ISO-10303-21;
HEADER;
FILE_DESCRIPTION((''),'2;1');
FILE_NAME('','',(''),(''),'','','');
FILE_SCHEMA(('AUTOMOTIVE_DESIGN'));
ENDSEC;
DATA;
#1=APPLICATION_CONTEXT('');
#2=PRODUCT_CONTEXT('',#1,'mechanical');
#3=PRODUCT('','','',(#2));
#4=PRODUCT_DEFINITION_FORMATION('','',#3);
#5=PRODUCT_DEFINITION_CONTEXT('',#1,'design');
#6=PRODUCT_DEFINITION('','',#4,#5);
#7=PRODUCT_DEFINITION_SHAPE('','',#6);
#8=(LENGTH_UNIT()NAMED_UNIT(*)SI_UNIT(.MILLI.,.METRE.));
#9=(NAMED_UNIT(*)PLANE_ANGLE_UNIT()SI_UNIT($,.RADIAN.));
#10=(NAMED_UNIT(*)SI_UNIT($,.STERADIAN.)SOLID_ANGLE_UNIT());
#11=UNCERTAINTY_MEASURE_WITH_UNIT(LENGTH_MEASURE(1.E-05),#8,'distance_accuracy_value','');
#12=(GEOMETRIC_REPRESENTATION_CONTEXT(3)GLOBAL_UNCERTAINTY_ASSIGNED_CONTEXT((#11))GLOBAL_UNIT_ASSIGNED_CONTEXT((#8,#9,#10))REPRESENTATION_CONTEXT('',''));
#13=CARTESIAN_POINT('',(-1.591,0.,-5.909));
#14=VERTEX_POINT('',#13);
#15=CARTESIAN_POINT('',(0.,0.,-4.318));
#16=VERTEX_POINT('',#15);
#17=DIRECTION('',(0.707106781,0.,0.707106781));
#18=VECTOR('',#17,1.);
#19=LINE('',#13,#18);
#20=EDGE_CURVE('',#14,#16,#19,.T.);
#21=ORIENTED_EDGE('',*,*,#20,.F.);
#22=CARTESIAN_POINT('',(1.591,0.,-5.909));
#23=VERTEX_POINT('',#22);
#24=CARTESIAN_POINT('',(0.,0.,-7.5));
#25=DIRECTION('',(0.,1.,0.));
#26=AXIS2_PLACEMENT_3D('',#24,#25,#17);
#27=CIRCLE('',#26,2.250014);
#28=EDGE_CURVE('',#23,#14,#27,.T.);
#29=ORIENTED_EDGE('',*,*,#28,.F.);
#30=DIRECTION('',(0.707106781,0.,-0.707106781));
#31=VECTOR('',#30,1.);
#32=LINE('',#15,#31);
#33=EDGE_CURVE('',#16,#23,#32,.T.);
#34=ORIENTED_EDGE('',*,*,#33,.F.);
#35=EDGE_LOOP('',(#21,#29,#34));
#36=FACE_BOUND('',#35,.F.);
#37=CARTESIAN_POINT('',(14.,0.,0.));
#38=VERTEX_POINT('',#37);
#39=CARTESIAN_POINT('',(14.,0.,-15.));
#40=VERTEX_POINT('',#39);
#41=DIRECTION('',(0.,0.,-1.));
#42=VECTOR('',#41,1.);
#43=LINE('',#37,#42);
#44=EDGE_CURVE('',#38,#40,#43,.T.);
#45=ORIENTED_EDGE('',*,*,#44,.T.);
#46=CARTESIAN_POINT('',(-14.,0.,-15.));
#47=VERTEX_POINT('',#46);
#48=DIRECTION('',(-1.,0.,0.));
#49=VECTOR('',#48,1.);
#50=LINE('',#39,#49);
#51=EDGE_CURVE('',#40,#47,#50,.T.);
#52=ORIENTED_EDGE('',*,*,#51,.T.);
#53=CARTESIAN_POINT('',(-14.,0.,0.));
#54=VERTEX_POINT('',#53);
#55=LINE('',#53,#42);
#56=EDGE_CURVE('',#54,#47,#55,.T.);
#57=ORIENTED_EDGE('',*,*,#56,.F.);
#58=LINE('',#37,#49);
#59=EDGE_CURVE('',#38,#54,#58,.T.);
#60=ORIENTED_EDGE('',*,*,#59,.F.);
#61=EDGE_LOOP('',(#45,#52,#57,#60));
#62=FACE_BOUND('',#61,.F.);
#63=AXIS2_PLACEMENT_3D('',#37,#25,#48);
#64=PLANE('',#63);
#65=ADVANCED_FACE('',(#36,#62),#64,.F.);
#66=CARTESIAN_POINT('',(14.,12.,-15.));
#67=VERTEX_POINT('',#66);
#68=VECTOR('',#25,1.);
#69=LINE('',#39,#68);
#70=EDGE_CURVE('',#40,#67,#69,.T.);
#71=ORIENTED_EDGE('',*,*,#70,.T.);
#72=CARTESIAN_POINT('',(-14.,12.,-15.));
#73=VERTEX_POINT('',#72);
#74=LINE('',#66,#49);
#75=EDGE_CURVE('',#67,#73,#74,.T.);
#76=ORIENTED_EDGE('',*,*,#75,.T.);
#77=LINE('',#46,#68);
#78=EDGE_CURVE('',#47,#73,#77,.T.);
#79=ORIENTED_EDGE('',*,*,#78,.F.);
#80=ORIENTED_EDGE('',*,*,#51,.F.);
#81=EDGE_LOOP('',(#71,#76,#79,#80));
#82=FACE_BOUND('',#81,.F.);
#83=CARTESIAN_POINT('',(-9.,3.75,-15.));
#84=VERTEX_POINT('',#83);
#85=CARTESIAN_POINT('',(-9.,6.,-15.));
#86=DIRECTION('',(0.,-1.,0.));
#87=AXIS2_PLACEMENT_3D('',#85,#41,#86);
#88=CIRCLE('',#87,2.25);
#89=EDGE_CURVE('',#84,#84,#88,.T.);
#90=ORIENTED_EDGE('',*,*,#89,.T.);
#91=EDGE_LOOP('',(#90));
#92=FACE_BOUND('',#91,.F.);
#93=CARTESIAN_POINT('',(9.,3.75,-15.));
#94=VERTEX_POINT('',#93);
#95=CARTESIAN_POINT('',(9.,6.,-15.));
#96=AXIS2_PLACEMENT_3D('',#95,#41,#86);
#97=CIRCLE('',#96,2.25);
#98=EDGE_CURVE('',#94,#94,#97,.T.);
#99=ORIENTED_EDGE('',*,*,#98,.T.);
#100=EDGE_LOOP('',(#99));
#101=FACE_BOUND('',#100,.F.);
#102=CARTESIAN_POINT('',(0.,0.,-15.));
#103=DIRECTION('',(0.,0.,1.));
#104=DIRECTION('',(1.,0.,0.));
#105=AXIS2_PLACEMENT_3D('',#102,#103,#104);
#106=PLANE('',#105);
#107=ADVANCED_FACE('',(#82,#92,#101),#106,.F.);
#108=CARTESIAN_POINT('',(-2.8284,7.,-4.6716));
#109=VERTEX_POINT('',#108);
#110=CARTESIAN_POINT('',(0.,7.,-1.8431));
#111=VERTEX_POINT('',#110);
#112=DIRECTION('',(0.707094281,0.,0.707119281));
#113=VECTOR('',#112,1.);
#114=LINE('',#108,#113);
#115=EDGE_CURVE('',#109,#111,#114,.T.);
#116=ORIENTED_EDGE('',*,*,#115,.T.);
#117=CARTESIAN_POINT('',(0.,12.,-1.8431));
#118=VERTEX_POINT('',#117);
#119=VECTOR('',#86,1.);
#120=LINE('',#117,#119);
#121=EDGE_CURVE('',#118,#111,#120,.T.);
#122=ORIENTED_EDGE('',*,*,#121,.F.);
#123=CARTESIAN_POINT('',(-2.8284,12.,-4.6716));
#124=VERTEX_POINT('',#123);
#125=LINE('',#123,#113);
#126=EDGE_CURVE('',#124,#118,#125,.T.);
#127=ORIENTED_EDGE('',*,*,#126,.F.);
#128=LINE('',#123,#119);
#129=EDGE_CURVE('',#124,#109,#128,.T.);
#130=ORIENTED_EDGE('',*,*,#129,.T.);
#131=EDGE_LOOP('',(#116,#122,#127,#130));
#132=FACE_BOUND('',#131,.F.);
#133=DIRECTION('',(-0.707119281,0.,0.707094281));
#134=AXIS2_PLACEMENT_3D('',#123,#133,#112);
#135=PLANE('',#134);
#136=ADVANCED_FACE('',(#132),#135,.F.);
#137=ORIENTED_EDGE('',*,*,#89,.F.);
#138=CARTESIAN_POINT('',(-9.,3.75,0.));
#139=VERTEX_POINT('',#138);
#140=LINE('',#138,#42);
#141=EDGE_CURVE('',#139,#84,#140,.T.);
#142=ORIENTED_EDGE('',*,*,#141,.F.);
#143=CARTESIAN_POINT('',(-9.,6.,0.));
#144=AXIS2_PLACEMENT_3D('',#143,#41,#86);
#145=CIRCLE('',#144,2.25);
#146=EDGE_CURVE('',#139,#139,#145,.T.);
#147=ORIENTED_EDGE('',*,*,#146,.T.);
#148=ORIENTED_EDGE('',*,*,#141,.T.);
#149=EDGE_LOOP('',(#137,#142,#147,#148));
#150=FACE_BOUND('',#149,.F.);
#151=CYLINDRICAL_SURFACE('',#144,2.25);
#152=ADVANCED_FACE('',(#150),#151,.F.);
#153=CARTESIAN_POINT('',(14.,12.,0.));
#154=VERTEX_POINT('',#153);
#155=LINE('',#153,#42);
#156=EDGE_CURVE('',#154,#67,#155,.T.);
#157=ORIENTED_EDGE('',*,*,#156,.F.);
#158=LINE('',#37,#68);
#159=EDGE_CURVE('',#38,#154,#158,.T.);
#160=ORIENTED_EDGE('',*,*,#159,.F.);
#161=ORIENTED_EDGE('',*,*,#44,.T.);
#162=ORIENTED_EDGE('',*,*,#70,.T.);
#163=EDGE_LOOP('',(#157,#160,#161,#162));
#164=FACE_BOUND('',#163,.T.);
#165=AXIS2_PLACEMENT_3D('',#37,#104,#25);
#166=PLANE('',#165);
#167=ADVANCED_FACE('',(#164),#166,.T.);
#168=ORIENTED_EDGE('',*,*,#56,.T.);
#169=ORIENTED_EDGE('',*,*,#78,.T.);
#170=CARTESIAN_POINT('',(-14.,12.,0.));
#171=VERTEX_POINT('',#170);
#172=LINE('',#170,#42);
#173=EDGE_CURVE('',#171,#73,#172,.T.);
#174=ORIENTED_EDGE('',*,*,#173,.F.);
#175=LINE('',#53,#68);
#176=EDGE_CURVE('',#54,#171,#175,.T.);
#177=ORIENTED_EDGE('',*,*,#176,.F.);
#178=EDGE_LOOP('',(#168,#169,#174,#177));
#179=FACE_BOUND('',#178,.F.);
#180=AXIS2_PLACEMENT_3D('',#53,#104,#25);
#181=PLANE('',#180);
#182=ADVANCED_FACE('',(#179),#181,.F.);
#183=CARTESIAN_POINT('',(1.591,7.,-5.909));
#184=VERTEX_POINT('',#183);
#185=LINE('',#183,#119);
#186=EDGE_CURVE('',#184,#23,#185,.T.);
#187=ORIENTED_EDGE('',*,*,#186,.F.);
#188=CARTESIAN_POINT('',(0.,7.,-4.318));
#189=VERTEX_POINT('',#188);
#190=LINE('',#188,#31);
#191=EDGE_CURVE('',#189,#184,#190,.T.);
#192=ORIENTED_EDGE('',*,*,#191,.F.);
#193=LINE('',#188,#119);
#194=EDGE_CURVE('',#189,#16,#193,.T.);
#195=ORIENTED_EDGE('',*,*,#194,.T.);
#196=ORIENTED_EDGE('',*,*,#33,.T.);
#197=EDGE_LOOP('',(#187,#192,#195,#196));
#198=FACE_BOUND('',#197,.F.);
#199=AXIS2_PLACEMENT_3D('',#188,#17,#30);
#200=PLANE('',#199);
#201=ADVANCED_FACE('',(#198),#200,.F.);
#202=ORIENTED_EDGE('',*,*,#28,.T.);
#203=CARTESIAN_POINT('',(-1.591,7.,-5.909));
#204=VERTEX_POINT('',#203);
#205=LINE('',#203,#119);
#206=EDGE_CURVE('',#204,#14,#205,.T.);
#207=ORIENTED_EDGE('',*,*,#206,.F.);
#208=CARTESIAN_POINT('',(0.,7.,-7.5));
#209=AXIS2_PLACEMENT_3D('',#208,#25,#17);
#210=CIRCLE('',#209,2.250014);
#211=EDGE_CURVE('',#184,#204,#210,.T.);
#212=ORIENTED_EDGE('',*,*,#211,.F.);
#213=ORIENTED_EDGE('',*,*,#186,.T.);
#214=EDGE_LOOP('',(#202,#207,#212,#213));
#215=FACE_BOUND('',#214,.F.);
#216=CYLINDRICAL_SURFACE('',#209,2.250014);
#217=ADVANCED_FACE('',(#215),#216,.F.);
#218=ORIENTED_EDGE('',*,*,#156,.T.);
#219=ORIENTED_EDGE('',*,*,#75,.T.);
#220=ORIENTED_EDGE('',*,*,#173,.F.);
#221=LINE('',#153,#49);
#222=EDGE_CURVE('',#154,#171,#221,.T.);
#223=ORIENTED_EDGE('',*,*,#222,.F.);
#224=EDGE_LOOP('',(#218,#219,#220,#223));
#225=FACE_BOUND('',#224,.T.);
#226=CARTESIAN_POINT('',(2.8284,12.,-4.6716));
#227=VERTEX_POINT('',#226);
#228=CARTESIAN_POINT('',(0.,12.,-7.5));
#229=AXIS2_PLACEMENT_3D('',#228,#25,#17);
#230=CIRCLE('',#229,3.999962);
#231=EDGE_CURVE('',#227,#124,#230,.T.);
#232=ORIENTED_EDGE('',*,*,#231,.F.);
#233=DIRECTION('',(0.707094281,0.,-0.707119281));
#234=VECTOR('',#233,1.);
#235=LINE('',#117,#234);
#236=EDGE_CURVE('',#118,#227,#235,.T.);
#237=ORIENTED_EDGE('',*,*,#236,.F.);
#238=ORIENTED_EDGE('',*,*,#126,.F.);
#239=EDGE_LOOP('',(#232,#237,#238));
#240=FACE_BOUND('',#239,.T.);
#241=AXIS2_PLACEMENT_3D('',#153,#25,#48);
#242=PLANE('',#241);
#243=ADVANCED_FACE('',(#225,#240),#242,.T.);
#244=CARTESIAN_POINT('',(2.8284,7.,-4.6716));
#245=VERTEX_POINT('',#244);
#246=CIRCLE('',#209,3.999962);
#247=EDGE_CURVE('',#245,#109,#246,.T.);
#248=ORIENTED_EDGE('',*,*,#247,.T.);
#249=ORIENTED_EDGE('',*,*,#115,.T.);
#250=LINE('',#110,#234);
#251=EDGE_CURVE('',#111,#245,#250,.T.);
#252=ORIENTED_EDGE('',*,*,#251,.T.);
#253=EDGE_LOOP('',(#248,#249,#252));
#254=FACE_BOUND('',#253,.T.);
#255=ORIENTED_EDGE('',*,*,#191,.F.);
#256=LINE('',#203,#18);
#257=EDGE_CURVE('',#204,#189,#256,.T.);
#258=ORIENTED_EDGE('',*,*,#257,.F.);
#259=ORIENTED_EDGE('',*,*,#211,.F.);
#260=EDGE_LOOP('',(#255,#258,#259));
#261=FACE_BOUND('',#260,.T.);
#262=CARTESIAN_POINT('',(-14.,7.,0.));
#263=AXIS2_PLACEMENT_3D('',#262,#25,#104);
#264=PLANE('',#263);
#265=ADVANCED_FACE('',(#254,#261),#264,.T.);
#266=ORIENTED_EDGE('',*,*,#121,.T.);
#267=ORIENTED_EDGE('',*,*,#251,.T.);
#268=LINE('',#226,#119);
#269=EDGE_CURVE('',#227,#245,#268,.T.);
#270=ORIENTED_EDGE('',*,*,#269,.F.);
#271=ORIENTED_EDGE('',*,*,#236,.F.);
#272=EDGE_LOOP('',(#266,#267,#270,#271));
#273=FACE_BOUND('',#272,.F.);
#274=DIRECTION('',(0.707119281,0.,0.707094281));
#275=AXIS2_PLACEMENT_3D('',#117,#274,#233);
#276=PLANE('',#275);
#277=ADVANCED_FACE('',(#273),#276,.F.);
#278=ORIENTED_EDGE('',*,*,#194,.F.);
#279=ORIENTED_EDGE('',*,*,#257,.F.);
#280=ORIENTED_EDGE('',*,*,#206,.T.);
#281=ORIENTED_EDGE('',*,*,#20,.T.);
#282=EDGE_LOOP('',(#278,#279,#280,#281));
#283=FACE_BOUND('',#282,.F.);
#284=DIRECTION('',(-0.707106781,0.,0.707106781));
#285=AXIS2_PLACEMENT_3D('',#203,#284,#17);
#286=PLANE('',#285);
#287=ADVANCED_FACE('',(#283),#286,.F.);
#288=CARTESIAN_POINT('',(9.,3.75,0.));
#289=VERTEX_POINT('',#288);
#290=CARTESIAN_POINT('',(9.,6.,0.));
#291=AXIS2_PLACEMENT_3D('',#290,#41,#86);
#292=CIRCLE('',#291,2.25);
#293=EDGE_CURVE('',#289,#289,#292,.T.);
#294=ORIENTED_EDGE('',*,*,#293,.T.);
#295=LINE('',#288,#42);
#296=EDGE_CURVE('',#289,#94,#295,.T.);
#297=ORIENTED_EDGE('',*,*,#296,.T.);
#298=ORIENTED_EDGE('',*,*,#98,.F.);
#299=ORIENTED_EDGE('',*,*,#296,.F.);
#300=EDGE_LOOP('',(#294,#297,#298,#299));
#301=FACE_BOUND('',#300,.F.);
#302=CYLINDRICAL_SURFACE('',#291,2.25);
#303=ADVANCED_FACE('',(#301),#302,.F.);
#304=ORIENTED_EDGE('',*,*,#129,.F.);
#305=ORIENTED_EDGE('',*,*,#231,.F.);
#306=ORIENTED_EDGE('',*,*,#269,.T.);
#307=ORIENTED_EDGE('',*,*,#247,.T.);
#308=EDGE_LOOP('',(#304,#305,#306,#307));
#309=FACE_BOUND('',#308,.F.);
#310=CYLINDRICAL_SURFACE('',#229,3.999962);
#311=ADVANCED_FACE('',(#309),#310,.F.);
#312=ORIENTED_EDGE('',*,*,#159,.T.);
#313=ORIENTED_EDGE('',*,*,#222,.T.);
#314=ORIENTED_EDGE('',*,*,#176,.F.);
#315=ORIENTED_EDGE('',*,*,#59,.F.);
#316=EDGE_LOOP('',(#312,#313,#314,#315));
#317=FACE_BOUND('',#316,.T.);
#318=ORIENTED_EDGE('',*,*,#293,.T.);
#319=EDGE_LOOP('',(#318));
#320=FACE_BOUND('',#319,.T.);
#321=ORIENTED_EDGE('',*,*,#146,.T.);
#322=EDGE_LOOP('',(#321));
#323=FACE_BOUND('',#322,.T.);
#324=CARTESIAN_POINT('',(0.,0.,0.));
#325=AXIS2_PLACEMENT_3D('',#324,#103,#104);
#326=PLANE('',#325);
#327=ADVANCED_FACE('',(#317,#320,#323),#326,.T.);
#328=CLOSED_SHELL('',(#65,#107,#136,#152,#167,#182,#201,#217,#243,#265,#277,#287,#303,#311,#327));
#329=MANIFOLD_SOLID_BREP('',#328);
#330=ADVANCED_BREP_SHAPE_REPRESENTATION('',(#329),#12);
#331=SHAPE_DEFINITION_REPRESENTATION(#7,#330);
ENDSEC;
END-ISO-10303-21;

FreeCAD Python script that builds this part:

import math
import FreeCAD as App
import Part
import Sketcher

V = App.Vector


def add_polygon(sketch, points):
    """Adds a closed chain of lines whose ends are joined by coincident constraints."""
    first, n = sketch.GeometryCount, len(points)
    for a, b in zip(points, points[1:] + points[:1]):
        sketch.addGeometry(Part.LineSegment(App.Vector(*a, 0), App.Vector(*b, 0)), False)
    for i in range(n):
        sketch.addConstraint(Sketcher.Constraint("Coincident", first + i, 2, first + (i + 1) % n, 1))

doc = App.newDocument("Part")
body = doc.addObject("PartDesign::Body", "Body")

# Sketch on XY plane
sketch1 = body.newObject("Sketcher::SketchObject", "Sketch")
sketch1.AttachmentSupport = (doc.getObject("XY_Plane"), [""])
sketch1.MapMode = "FlatFace"
add_polygon(sketch1, [(-14, 12), (-14, 0), (14, 0), (14, 12)])  # lines 0-3
sketch1.addConstraint([
    Sketcher.Constraint("Vertical", 0),
    Sketcher.Constraint("Horizontal", 1),
    Sketcher.Constraint("Vertical", 2),
    Sketcher.Constraint("Horizontal", 3),
    Sketcher.Constraint("Symmetric", 0, 2, 1, 2, -1, 1),
    Sketcher.Constraint("DistanceX", 1, 1, 1, 2, 28.0),
    Sketcher.Constraint("DistanceY", 0, 2, 0, 1, 12.0),
])
pad1 = body.newObject("PartDesign::Pad", "Pad")
pad1.Profile = sketch1
pad1.Length = 15
pad1.Reversed = True

# Sketch on XZ plane
sketch2 = body.newObject("Sketcher::SketchObject", "Sketch001")
sketch2.AttachmentSupport = (doc.getObject("XZ_Plane"), [""])
sketch2.MapMode = "FlatFace"
sketch2.AttachmentOffset = App.Placement(V(0, 0, -12), App.Rotation())
sketch2.addGeometry([
    Part.LineSegment(V(0, -1.8, 0), V(2.8, -4.7, 0)),
    Part.ArcOfCircle(Part.Circle(V(0, -7.5, 0), V(0, 0, 1), 4), math.radians(135), math.radians(405)),
    Part.LineSegment(V(-2.8, -4.7, 0), V(0, -1.8, 0)),
], False)
sketch2.addConstraint([
    Sketcher.Constraint("Tangent", 0, 2, 1, 2),
    Sketcher.Constraint("Tangent", 1, 1, 2, 1),
    Sketcher.Constraint("Coincident", 2, 2, 0, 1),
    Sketcher.Constraint("Symmetric", 0, 2, 1, 1, -2),
    Sketcher.Constraint("Perpendicular", 0, 2),
    Sketcher.Constraint("Radius", 1, 4.0),
    Sketcher.Constraint("DistanceY", 1, 3, -1, 1, 7.5),
])
pocket1 = body.newObject("PartDesign::Pocket", "Pocket")
pocket1.Profile = sketch2
pocket1.Length = 5
pocket1.Reversed = True

# Sketch on XZ plane
sketch3 = body.newObject("Sketcher::SketchObject", "Sketch002")
sketch3.AttachmentSupport = (doc.getObject("XZ_Plane"), [""])
sketch3.MapMode = "FlatFace"
sketch3.AttachmentOffset = App.Placement(V(0, 0, -7), App.Rotation())
sketch3.addGeometry([
    Part.LineSegment(V(0, -4.3, 0), V(1.6, -5.9, 0)),
    Part.ArcOfCircle(Part.Circle(V(0, -7.5, 0), V(0, 0, 1), 2.3), math.radians(135), math.radians(405)),
    Part.LineSegment(V(-1.6, -5.9, 0), V(0, -4.3, 0)),
], False)
sketch3.addConstraint([
    Sketcher.Constraint("Tangent", 0, 2, 1, 2),
    Sketcher.Constraint("Tangent", 1, 1, 2, 1),
    Sketcher.Constraint("Coincident", 2, 2, 0, 1),
    Sketcher.Constraint("Symmetric", 0, 2, 1, 1, -2),
    Sketcher.Constraint("Perpendicular", 0, 2),
    Sketcher.Constraint("Radius", 1, 2.25),
    Sketcher.Constraint("DistanceY", 1, 3, -1, 1, 7.5),
])
pocket2 = body.newObject("PartDesign::Pocket", "Pocket001")
pocket2.Profile = sketch3
pocket2.Length = 7
pocket2.Reversed = True

# Sketch on XY plane
sketch4 = body.newObject("Sketcher::SketchObject", "Sketch003")
sketch4.AttachmentSupport = (doc.getObject("XY_Plane"), [""])
sketch4.MapMode = "FlatFace"
sketch4.addGeometry(Part.Circle(V(9, 6, 0), V(0, 0, 1), 2.2), False)
sketch4.addConstraint([
    Sketcher.Constraint("Diameter", 0, 4.5),
    Sketcher.Constraint("DistanceX", -1, 1, 0, 3, 9.0),
    Sketcher.Constraint("DistanceY", -1, 1, 0, 3, 6.0),
])
doc.recompute()
hole = body.newObject("PartDesign::Hole", "Hole")
hole.Profile = sketch4
hole.ThreadType = "None"
hole.Diameter = 4.5
hole.DepthType = "Dimension"
hole.Depth = 15
hole.DrillPoint = "Flat"

# Sketch on XY plane
sketch5 = body.newObject("Sketcher::SketchObject", "Sketch004")
sketch5.AttachmentSupport = (doc.getObject("XY_Plane"), [""])
sketch5.MapMode = "FlatFace"
sketch5.addGeometry(Part.Circle(V(-9, 6, 0), V(0, 0, 1), 2.2), False)
sketch5.addConstraint([
    Sketcher.Constraint("Diameter", 0, 4.5),
    Sketcher.Constraint("DistanceX", 0, 3, -1, 1, 9.0),
    Sketcher.Constraint("DistanceY", -1, 1, 0, 3, 6.0),
])
doc.recompute()
hole2 = body.newObject("PartDesign::Hole", "Hole001")
hole2.Profile = sketch5
hole2.ThreadType = "None"
hole2.Diameter = 4.5
hole2.DepthType = "Dimension"
hole2.Depth = 15
hole2.DrillPoint = "Flat"

doc.recompute()
